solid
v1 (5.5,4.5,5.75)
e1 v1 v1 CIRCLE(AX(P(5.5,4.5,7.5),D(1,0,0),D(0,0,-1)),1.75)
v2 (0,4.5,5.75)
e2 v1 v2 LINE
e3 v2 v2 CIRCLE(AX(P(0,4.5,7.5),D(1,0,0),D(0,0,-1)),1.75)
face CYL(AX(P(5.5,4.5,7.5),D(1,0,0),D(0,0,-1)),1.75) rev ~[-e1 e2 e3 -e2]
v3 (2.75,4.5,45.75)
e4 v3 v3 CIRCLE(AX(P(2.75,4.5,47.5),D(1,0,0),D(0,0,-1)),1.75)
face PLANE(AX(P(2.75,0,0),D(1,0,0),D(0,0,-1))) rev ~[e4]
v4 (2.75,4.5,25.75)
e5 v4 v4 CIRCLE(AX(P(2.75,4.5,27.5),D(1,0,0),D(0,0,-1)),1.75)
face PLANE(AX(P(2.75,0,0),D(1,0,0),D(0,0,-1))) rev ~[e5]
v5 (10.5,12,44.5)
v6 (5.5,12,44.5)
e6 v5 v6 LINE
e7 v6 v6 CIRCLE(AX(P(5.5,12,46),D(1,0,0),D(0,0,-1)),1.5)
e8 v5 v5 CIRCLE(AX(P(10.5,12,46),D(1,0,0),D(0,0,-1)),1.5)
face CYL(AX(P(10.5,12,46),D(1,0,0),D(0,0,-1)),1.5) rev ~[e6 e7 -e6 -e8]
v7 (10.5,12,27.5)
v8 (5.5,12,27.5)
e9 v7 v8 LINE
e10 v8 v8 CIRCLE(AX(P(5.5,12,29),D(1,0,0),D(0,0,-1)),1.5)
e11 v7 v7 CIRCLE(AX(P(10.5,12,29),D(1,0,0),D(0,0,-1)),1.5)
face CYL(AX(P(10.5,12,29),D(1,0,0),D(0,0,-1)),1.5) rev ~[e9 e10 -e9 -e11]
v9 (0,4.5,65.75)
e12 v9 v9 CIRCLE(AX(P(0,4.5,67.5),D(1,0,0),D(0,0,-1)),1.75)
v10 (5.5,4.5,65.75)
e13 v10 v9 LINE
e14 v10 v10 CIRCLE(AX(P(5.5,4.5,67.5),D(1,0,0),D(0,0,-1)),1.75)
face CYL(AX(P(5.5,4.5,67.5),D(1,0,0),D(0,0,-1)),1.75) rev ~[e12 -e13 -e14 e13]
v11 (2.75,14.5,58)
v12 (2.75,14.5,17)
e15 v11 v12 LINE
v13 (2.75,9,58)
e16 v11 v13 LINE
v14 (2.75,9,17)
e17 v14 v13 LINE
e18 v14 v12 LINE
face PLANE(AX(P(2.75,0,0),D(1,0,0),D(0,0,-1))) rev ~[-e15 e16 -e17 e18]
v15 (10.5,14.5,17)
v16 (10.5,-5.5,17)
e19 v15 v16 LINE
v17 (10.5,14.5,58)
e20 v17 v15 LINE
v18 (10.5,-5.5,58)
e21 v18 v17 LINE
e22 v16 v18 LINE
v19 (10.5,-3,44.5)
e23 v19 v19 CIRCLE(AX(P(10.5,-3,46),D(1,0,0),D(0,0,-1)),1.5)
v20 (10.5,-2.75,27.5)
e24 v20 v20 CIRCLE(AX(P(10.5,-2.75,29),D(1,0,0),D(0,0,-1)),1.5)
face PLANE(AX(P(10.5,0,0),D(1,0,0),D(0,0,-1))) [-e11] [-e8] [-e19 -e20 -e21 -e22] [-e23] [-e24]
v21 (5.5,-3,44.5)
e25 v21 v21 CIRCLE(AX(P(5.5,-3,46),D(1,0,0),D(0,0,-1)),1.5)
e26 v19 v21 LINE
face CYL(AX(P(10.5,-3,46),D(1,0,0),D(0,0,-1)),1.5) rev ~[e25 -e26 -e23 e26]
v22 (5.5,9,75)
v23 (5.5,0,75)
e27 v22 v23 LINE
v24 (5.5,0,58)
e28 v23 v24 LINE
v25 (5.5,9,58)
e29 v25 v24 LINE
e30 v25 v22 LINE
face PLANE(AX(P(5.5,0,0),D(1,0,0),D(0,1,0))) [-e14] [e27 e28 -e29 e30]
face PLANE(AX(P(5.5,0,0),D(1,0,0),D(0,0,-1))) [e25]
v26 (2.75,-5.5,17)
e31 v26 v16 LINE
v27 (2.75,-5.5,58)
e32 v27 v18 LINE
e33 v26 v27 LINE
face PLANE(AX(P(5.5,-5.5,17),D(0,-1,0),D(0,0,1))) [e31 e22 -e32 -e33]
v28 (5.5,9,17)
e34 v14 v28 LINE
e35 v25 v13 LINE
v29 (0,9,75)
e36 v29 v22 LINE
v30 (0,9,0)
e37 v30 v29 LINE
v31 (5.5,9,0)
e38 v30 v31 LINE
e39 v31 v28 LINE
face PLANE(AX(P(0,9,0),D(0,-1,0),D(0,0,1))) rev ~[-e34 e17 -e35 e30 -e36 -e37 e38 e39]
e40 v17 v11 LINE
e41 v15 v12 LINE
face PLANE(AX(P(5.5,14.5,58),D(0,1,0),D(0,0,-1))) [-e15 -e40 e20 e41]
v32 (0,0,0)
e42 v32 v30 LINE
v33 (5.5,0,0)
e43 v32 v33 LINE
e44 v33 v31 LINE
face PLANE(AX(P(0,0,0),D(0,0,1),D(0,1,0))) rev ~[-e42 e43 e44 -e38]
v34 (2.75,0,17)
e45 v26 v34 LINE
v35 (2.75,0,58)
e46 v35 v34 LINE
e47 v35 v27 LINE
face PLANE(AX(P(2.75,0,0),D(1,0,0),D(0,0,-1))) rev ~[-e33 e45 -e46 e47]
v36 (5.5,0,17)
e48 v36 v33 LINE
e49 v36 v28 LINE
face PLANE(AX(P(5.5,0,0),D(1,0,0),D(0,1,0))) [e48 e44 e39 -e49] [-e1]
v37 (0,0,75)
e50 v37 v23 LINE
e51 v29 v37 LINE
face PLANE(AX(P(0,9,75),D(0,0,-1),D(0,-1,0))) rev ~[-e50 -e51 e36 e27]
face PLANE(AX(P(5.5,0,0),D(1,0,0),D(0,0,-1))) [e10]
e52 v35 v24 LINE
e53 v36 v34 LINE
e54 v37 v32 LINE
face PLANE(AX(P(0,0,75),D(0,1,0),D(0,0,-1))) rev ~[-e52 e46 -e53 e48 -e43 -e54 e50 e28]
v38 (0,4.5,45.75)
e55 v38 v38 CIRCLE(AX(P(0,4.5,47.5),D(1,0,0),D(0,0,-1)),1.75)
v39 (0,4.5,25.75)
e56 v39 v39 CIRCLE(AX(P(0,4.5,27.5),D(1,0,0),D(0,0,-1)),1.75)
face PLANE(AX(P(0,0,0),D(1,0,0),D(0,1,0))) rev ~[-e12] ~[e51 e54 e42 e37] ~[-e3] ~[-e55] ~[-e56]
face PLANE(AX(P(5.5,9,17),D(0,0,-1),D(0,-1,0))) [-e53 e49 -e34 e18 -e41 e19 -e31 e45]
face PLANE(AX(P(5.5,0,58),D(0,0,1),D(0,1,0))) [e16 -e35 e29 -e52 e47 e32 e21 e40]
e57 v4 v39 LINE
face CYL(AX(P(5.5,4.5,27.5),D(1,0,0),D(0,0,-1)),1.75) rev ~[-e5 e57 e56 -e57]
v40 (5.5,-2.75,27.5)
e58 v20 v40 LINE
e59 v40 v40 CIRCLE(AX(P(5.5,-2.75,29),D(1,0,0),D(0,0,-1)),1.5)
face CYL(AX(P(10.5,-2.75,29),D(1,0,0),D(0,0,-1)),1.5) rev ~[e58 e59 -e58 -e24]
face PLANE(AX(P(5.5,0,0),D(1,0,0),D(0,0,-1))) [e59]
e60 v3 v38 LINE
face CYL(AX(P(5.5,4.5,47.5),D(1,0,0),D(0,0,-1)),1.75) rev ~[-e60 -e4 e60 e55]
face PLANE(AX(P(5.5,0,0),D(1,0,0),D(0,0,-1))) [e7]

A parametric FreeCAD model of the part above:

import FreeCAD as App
import Part
import Sketcher

V = App.Vector


def add_polygon(sketch, points):
    """Adds a closed chain of lines whose ends are joined by coincident constraints."""
    first, n = sketch.GeometryCount, len(points)
    for a, b in zip(points, points[1:] + points[:1]):
        sketch.addGeometry(Part.LineSegment(App.Vector(*a, 0), App.Vector(*b, 0)), False)
    for i in range(n):
        sketch.addConstraint(Sketcher.Constraint("Coincident", first + i, 2, first + (i + 1) % n, 1))

doc = App.newDocument("Part")
body = doc.addObject("PartDesign::Body", "Body")

sketch1 = doc.addObject("Sketcher::SketchObject", "Sketch")
body.addObject(sketch1)
sketch1.AttachmentSupport = (doc.YZ_Plane, [""])
sketch1.MapMode = "FlatFace"
add_polygon(sketch1, [(0, 75), (0, 0), (9, 0), (9, 75)])
sketch1.addConstraint([
    Sketcher.Constraint("Vertical", 0),
    Sketcher.Constraint("Horizontal", 1),
    Sketcher.Constraint("Vertical", 2),
    Sketcher.Constraint("Horizontal", 3),
    Sketcher.Constraint("Coincident", 0, 2, -1, 1),
    Sketcher.Constraint("DistanceX", 1, 1, 1, 2, 9.0),
    Sketcher.Constraint("DistanceY", 0, 2, 0, 1, 75.0),
])
pad1 = doc.addObject("PartDesign::Pad", "Pad")
body.addObject(pad1)
pad1.Profile = sketch1
pad1.Length = 5.5

sketch2 = doc.addObject("Sketcher::SketchObject", "Sketch001")
body.addObject(sketch2)
sketch2.AttachmentSupport = (doc.YZ_Plane, [""])
sketch2.MapMode = "FlatFace"
sketch2.AttachmentOffset = App.Placement(V(0, 0, 5.5), App.Rotation())
sketch2.addGeometry([
    Part.Circle(V(4.5, 67.5, 0), V(0, 0, 1), 1.8),
    Part.Circle(V(4.5, 7.5, 0), V(0, 0, 1), 1.8),
    Part.Circle(V(4.5, 47.5, 0), V(0, 0, 1), 1.8),
    Part.Circle(V(4.5, 27.5, 0), V(0, 0, 1), 1.8),
], False)
sketch2.addConstraint([
    Sketcher.Constraint("Equal", 0, 1),
    Sketcher.Constraint("Equal", 1, 2),
    Sketcher.Constraint("Equal", 2, 3),
    Sketcher.Constraint("Vertical", 0, 3, 1, 3),
    Sketcher.Constraint("Vertical", 1, 3, 2, 3),
    Sketcher.Constraint("Vertical", 2, 3, 3, 3),
    Sketcher.Constraint("Diameter", 0, 3.5),
    Sketcher.Constraint("DistanceY", 2, 3, 0, 3, 20.0),
    Sketcher.Constraint("DistanceY", 1, 3, 3, 3, 20.0),
    Sketcher.Constraint("DistanceY", 3, 3, 2, 3, 20.0),
    Sketcher.Constraint("DistanceY", -1, 1, 1, 3, 7.5),
    Sketcher.Constraint("DistanceX", -1, 1, 0, 3, 4.5),
])
pocket1 = doc.addObject("PartDesign::Pocket", "Pocket")
body.addObject(pocket1)
pocket1.Profile = sketch2
pocket1.Type = "ThroughAll"

sketch3 = doc.addObject("Sketcher::SketchObject", "Sketch002")
body.addObject(sketch3)
sketch3.AttachmentSupport = (doc.YZ_Plane, [""])
sketch3.MapMode = "FlatFace"
sketch3.AttachmentOffset = App.Placement(V(0, 0, 5.5), App.Rotation())
add_polygon(sketch3, [(-6, 58), (-6, 17), (14, 17), (14, 58)])
sketch3.addConstraint([
    Sketcher.Constraint("Vertical", 0),
    Sketcher.Constraint("Horizontal", 1),
    Sketcher.Constraint("Vertical", 2),
    Sketcher.Constraint("Horizontal", 3),
    Sketcher.Constraint("DistanceX", 1, 1, 1, 2, 20.0),
    Sketcher.Constraint("DistanceY", 0, 2, 0, 1, 41.0),
    Sketcher.Constraint("DistanceY", -1, 1, 0, 2, 17.0),
    Sketcher.Constraint("DistanceX", 0, 2, -1, 1, 5.5),
])
pad2 = doc.addObject("PartDesign::Pad", "Pad001")
body.addObject(pad2)
pad2.Profile = sketch3
pad2.Type = "TwoLengths"
pad2.Length = 5
pad2.Length2 = 2.75

sketch4 = doc.addObject("Sketcher::SketchObject", "Sketch003")
body.addObject(sketch4)
sketch4.AttachmentSupport = (doc.YZ_Plane, [""])
sketch4.MapMode = "FlatFace"
sketch4.AttachmentOffset = App.Placement(V(0, 0, 10.5), App.Rotation())
sketch4.addGeometry([
    Part.Circle(V(-3, 46, 0), V(0, 0, 1), 1.5),
    Part.Circle(V(12, 46, 0), V(0, 0, 1), 1.5),
    Part.Circle(V(-2.8, 29, 0), V(0, 0, 1), 1.5),
    Part.Circle(V(12, 29, 0), V(0, 0, 1), 1.5),
    Part.Circle(V(21, 46, 0), V(0, 0, 1), 1.5),
    Part.Circle(V(21, 30.5, 0), V(0, 0, 1), 1.5),
], False)
sketch4.addConstraint([
    Sketcher.Constraint("Equal", 0, 1),
    Sketcher.Constraint("Equal", 1, 2),
    Sketcher.Constraint("Equal", 2, 3),
    Sketcher.Constraint("Equal", 3, 4),
    Sketcher.Constraint("Equal", 4, 5),
    Sketcher.Constraint("Horizontal", 0, 3, 1, 3),
    Sketcher.Constraint("Horizontal", 2, 3, 3, 3),
    Sketcher.Constraint("Horizontal", 1, 3, 4, 3),
    Sketcher.Constraint("Vertical", 1, 3, 3, 3),
    Sketcher.Constraint("Vertical", 4, 3, 5, 3),
    Sketcher.Constraint("Diameter", 0, 3.0),
    Sketcher.Constraint("DistanceX", 0, 3, -1, 1, 3.0),
    Sketcher.Constraint("DistanceY", -1, 1, 0, 3, 46.0),
    Sketcher.Constraint("DistanceX", -1, 1, 1, 3, 12.0),
    Sketcher.Constraint("DistanceY", -1, 1, 2, 3, 29.0),
    Sketcher.Constraint("DistanceY", -1, 1, 5, 3, 30.5),
    Sketcher.Constraint("DistanceX", 2, 3, -1, 1, 2.75),
    Sketcher.Constraint("DistanceX", -1, 1, 4, 3, 21.0354),
])
pocket2 = doc.addObject("PartDesign::Pocket", "Pocket001")
body.addObject(pocket2)
pocket2.Profile = sketch4
pocket2.Length = 5

doc.recompute()
